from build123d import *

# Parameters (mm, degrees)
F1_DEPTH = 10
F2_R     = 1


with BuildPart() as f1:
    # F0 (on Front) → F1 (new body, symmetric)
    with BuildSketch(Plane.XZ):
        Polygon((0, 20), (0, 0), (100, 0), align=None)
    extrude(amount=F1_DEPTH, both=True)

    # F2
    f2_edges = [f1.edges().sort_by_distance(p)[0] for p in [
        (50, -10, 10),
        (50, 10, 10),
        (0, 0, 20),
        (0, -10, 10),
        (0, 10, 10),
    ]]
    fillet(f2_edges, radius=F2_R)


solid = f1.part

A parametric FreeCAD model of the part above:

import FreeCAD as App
import Part
import Sketcher
Q = App.Units.Quantity


def edges_at(feature, points):
    """Names of the edges that pass closest to the given points."""
    edges = feature.Shape.Edges
    near = lambda p: min(range(len(edges)), key=lambda i: edges[i].distToShape(Part.Vertex(*p))[0])
    return sorted({f"Edge{near(p) + 1}" for p in points})


def add_polygon(sketch, points):
    """Adds a closed chain of lines whose ends are joined by coincident constraints."""
    first, n = sketch.GeometryCount, len(points)
    for a, b in zip(points, points[1:] + points[:1]):
        sketch.addGeometry(Part.LineSegment(App.Vector(*a, 0), App.Vector(*b, 0)), False)
    for i in range(n):
        sketch.addConstraint(Sketcher.Constraint("Coincident", first + i, 2, first + (i + 1) % n, 1))

doc = App.newDocument("Part")
params = doc.addObject("Spreadsheet::Sheet", "Params")
for row, (alias, value) in enumerate([
    ("sketch1_width", "100 mm"),
    ("sketch1_height", "20 mm"),
    ("pad1_length", "20 mm"),
    ("fillet_radius", "1 mm"),
], start=1):
    params.set(f"A{row}", alias)
    params.set(f"B{row}", "=" + value)
    params.setAlias(f"B{row}", alias)

body = doc.addObject("PartDesign::Body", "Body")

sketch1 = body.newObject("Sketcher::SketchObject", "Sketch")
sketch1.AttachmentSupport = (doc.getObject("XZ_Plane"), [""])
sketch1.MapMode = "FlatFace"
add_polygon(sketch1, [(0, 20), (0, 0), (100, 0)])
sketch1.addConstraint(Sketcher.Constraint("Vertical", 0))
sketch1.addConstraint(Sketcher.Constraint("Horizontal", 1))
sketch1.addConstraint(Sketcher.Constraint("Coincident", 0, 2, -1, 1))
sketch1.addConstraint(Sketcher.Constraint("DistanceX", 1, 1, 1, 2, Q("100 mm")))
sketch1.addConstraint(Sketcher.Constraint("DistanceY", 0, 2, 0, 1, Q("20 mm")))
sketch1.setExpression("Constraints[6]", "Params.sketch1_width")
sketch1.setExpression("Constraints[7]", "Params.sketch1_height")
pad1 = body.newObject("PartDesign::Pad", "Pad")
pad1.Profile = sketch1
pad1.setExpression("Length", "Params.pad1_length")
pad1.Midplane = True
doc.recompute()

fillet = body.newObject("PartDesign::Fillet", "Fillet")
fillet.Base = (pad1, edges_at(pad1, [
    (50, -10, 10),
    (50, 10, 10),
    (0, 0, 20),
    (0, -10, 10),
    (0, 10, 10),
]))
fillet.setExpression("Radius", "Params.fillet_radius")

doc.recompute()
